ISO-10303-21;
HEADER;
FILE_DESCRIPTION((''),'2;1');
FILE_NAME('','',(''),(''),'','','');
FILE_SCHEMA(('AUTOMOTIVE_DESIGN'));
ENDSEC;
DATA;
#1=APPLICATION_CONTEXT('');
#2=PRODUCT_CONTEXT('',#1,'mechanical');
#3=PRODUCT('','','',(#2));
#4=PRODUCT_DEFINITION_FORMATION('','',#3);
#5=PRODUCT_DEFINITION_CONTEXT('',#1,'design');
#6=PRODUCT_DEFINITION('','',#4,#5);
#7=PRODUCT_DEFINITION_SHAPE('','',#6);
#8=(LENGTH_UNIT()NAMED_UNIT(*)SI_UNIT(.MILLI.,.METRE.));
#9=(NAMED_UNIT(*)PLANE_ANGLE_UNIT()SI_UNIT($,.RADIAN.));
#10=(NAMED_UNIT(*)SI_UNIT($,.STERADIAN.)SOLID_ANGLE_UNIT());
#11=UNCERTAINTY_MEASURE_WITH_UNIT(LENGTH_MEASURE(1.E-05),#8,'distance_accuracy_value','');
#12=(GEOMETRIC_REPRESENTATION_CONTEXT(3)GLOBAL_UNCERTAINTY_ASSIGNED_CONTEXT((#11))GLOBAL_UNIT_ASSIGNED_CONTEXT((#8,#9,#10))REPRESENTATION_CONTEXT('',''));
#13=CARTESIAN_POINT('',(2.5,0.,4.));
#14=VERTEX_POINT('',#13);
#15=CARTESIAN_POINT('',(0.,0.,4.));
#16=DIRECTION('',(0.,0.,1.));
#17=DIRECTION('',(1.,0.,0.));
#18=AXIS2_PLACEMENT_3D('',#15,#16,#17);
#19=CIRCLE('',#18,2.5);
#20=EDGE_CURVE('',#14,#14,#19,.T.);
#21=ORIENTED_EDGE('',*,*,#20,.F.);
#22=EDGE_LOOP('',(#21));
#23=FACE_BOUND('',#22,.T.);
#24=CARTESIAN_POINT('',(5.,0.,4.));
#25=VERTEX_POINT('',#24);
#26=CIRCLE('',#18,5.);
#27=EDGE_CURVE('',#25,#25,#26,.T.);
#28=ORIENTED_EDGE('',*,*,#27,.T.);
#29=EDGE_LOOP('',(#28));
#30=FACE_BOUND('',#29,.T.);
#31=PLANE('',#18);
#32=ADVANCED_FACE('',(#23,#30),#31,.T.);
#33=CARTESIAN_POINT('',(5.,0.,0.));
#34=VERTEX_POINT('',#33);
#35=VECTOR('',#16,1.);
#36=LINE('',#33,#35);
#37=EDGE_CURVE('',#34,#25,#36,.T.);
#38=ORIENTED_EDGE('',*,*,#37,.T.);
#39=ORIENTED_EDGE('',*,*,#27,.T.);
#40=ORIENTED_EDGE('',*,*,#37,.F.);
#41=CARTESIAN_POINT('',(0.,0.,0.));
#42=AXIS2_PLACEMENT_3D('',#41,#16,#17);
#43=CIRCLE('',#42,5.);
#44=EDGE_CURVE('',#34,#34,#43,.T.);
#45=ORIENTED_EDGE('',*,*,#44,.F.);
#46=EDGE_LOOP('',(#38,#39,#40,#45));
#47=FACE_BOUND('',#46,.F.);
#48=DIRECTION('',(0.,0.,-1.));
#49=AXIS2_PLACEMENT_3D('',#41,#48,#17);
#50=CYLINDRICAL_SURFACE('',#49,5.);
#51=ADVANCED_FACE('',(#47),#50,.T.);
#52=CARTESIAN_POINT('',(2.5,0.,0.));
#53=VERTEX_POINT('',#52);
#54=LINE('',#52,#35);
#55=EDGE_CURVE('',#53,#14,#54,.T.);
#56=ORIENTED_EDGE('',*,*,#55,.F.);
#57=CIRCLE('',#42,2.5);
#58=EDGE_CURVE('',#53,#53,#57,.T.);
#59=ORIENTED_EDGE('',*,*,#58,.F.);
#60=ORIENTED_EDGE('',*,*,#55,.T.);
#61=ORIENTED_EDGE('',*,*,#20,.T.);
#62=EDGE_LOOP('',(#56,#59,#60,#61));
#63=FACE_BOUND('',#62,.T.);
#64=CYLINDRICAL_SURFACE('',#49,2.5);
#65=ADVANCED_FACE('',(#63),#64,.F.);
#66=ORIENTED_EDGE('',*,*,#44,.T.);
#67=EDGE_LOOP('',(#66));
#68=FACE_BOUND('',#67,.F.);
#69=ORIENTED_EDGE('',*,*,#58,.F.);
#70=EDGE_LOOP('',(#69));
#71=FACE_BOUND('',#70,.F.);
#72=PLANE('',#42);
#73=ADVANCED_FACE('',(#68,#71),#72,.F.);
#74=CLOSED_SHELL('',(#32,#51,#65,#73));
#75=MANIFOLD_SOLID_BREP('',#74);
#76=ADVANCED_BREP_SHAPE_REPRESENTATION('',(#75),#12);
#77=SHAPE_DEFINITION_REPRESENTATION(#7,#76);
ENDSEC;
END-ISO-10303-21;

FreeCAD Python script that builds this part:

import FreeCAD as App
import Part
import Sketcher
Q = App.Units.Quantity

doc = App.newDocument("Part")
params = doc.addObject("Spreadsheet::Sheet", "Params")
for row, (alias, value) in enumerate([
    ("sketch1_diameter", "10 mm"),
    ("sketch1_diameter2", "5 mm"),
    ("pad1_length", "4 mm"),
], start=1):
    params.set(f"A{row}", alias)
    params.set(f"B{row}", "=" + value)
    params.setAlias(f"B{row}", alias)

body = doc.addObject("PartDesign::Body", "Body")

sketch1 = body.newObject("Sketcher::SketchObject", "Sketch")
sketch1.AttachmentSupport = (doc.getObject("XY_Plane"), [""])
sketch1.MapMode = "FlatFace"
sketch1.addGeometry([
    Part.Circle(App.Vector(0, 0, 0), App.Vector(0, 0, 1), 5),
    Part.Circle(App.Vector(0, 0, 0), App.Vector(0, 0, 1), 2.5),
], False)
sketch1.addConstraint([
    Sketcher.Constraint("Coincident", 0, 3, -1, 1),
    Sketcher.Constraint("Coincident", 1, 3, -1, 1),
    Sketcher.Constraint("Diameter", 0, Q("10 mm")),
    Sketcher.Constraint("Diameter", 1, Q("5 mm")),
])
sketch1.setExpression("Constraints[2]", "Params.sketch1_diameter")
sketch1.setExpression("Constraints[3]", "Params.sketch1_diameter2")
pad1 = body.newObject("PartDesign::Pad", "Pad")
pad1.Profile = sketch1
pad1.setExpression("Length", "Params.pad1_length")

doc.recompute()
